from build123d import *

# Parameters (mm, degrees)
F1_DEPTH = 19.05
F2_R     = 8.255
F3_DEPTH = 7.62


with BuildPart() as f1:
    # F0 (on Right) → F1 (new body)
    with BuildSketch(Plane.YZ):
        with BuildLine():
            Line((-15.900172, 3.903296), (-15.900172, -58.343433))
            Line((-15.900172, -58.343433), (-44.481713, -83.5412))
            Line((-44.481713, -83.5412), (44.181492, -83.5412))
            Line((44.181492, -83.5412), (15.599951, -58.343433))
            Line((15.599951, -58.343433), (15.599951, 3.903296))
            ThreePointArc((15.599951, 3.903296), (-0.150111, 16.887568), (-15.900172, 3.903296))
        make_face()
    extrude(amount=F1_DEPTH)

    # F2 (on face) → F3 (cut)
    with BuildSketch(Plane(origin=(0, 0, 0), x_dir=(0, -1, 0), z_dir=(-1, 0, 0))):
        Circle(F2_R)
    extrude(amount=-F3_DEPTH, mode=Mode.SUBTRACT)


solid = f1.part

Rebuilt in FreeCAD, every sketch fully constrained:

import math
import FreeCAD as App
import Part
import Sketcher
from FreeCAD import Vector
Q = App.Units.Quantity

doc = App.newDocument("Part")
body = doc.addObject("PartDesign::Body", "Body")

# Sketch on YZ plane
sketch1 = body.newObject("Sketcher::SketchObject", "Sketch")
sketch1.AttachmentSupport = (doc.getObject("YZ_Plane"), [""])
sketch1.MapMode = "FlatFace"
sketch1.addGeometry(Part.LineSegment(Vector(-16, 4, 0), Vector(-16, -58, 0)), False)
sketch1.addGeometry(Part.LineSegment(Vector(-16, -58, 0), Vector(-44, -84, 0)), False)
sketch1.addGeometry(Part.LineSegment(Vector(-44, -84, 0), Vector(44, -84, 0)), False)
sketch1.addGeometry(Part.LineSegment(Vector(44, -84, 0), Vector(16, -58, 0)), False)
sketch1.addGeometry(Part.LineSegment(Vector(16, -58, 0), Vector(16, 4, 0)), False)
sketch1.addGeometry(Part.ArcOfCircle(Part.Circle(Vector(0, 1, 0), Vector(0, 0, 1), 16), math.radians(11), math.radians(169)), False)
sketch1.addConstraint(Sketcher.Constraint("Coincident", 0, 2, 1, 1))
sketch1.addConstraint(Sketcher.Constraint("Coincident", 1, 2, 2, 1))
sketch1.addConstraint(Sketcher.Constraint("Coincident", 2, 2, 3, 1))
sketch1.addConstraint(Sketcher.Constraint("Coincident", 3, 2, 4, 1))
sketch1.addConstraint(Sketcher.Constraint("Coincident", 4, 2, 5, 1))
sketch1.addConstraint(Sketcher.Constraint("Coincident", 5, 2, 0, 1))
sketch1.addConstraint(Sketcher.Constraint("Vertical", 0))
sketch1.addConstraint(Sketcher.Constraint("Horizontal", 2))
sketch1.addConstraint(Sketcher.Constraint("Vertical", 4))
sketch1.addConstraint(Sketcher.Constraint("Horizontal", 0, 2, 3, 2))
sketch1.addConstraint(Sketcher.Constraint("Horizontal", 4, 2, 5, 2))
sketch1.addConstraint(Sketcher.Constraint("Equal", 1, 3))
sketch1.addConstraint(Sketcher.Constraint("Radius", 5, 16.044633))
sketch1.addConstraint(Sketcher.Constraint("DistanceY", 0, 2, 0, 1, 62.246729))
sketch1.addConstraint(Sketcher.Constraint("DistanceY", 1, 2, -1, 1, 83.5412))
sketch1.addConstraint(Sketcher.Constraint("DistanceX", 2, 1, 2, 2, 88.663205))
sketch1.addConstraint(Sketcher.Constraint("DistanceX", 5, 3, -1, 1, 0.150111))
sketch1.addConstraint(Sketcher.Constraint("DistanceX", -1, 1, 3, 2, 15.599951))
sketch1.addConstraint(Sketcher.Constraint("Distance", 1, 38.102913))
pad1 = body.newObject("PartDesign::Pad", "Pad")
pad1.Profile = sketch1
pad1.Length = Q("0.75 in")

# Sketch on YZ plane
sketch2 = body.newObject("Sketcher::SketchObject", "Sketch001")
sketch2.AttachmentSupport = (doc.getObject("YZ_Plane"), [""])
sketch2.MapMode = "FlatFace"
sketch2.addGeometry(Part.Circle(Vector(0, 0, 0), Vector(0, 0, 1), 8), False)
sketch2.addConstraint(Sketcher.Constraint("Coincident", 0, 3, -1, 1))
sketch2.addConstraint(Sketcher.Constraint("Diameter", 0, Q("0.65 in")))
pocket1 = body.newObject("PartDesign::Pocket", "Pocket")
pocket1.Profile = sketch2
pocket1.Length = Q("0.3 in")
pocket1.Reversed = True

doc.recompute()
